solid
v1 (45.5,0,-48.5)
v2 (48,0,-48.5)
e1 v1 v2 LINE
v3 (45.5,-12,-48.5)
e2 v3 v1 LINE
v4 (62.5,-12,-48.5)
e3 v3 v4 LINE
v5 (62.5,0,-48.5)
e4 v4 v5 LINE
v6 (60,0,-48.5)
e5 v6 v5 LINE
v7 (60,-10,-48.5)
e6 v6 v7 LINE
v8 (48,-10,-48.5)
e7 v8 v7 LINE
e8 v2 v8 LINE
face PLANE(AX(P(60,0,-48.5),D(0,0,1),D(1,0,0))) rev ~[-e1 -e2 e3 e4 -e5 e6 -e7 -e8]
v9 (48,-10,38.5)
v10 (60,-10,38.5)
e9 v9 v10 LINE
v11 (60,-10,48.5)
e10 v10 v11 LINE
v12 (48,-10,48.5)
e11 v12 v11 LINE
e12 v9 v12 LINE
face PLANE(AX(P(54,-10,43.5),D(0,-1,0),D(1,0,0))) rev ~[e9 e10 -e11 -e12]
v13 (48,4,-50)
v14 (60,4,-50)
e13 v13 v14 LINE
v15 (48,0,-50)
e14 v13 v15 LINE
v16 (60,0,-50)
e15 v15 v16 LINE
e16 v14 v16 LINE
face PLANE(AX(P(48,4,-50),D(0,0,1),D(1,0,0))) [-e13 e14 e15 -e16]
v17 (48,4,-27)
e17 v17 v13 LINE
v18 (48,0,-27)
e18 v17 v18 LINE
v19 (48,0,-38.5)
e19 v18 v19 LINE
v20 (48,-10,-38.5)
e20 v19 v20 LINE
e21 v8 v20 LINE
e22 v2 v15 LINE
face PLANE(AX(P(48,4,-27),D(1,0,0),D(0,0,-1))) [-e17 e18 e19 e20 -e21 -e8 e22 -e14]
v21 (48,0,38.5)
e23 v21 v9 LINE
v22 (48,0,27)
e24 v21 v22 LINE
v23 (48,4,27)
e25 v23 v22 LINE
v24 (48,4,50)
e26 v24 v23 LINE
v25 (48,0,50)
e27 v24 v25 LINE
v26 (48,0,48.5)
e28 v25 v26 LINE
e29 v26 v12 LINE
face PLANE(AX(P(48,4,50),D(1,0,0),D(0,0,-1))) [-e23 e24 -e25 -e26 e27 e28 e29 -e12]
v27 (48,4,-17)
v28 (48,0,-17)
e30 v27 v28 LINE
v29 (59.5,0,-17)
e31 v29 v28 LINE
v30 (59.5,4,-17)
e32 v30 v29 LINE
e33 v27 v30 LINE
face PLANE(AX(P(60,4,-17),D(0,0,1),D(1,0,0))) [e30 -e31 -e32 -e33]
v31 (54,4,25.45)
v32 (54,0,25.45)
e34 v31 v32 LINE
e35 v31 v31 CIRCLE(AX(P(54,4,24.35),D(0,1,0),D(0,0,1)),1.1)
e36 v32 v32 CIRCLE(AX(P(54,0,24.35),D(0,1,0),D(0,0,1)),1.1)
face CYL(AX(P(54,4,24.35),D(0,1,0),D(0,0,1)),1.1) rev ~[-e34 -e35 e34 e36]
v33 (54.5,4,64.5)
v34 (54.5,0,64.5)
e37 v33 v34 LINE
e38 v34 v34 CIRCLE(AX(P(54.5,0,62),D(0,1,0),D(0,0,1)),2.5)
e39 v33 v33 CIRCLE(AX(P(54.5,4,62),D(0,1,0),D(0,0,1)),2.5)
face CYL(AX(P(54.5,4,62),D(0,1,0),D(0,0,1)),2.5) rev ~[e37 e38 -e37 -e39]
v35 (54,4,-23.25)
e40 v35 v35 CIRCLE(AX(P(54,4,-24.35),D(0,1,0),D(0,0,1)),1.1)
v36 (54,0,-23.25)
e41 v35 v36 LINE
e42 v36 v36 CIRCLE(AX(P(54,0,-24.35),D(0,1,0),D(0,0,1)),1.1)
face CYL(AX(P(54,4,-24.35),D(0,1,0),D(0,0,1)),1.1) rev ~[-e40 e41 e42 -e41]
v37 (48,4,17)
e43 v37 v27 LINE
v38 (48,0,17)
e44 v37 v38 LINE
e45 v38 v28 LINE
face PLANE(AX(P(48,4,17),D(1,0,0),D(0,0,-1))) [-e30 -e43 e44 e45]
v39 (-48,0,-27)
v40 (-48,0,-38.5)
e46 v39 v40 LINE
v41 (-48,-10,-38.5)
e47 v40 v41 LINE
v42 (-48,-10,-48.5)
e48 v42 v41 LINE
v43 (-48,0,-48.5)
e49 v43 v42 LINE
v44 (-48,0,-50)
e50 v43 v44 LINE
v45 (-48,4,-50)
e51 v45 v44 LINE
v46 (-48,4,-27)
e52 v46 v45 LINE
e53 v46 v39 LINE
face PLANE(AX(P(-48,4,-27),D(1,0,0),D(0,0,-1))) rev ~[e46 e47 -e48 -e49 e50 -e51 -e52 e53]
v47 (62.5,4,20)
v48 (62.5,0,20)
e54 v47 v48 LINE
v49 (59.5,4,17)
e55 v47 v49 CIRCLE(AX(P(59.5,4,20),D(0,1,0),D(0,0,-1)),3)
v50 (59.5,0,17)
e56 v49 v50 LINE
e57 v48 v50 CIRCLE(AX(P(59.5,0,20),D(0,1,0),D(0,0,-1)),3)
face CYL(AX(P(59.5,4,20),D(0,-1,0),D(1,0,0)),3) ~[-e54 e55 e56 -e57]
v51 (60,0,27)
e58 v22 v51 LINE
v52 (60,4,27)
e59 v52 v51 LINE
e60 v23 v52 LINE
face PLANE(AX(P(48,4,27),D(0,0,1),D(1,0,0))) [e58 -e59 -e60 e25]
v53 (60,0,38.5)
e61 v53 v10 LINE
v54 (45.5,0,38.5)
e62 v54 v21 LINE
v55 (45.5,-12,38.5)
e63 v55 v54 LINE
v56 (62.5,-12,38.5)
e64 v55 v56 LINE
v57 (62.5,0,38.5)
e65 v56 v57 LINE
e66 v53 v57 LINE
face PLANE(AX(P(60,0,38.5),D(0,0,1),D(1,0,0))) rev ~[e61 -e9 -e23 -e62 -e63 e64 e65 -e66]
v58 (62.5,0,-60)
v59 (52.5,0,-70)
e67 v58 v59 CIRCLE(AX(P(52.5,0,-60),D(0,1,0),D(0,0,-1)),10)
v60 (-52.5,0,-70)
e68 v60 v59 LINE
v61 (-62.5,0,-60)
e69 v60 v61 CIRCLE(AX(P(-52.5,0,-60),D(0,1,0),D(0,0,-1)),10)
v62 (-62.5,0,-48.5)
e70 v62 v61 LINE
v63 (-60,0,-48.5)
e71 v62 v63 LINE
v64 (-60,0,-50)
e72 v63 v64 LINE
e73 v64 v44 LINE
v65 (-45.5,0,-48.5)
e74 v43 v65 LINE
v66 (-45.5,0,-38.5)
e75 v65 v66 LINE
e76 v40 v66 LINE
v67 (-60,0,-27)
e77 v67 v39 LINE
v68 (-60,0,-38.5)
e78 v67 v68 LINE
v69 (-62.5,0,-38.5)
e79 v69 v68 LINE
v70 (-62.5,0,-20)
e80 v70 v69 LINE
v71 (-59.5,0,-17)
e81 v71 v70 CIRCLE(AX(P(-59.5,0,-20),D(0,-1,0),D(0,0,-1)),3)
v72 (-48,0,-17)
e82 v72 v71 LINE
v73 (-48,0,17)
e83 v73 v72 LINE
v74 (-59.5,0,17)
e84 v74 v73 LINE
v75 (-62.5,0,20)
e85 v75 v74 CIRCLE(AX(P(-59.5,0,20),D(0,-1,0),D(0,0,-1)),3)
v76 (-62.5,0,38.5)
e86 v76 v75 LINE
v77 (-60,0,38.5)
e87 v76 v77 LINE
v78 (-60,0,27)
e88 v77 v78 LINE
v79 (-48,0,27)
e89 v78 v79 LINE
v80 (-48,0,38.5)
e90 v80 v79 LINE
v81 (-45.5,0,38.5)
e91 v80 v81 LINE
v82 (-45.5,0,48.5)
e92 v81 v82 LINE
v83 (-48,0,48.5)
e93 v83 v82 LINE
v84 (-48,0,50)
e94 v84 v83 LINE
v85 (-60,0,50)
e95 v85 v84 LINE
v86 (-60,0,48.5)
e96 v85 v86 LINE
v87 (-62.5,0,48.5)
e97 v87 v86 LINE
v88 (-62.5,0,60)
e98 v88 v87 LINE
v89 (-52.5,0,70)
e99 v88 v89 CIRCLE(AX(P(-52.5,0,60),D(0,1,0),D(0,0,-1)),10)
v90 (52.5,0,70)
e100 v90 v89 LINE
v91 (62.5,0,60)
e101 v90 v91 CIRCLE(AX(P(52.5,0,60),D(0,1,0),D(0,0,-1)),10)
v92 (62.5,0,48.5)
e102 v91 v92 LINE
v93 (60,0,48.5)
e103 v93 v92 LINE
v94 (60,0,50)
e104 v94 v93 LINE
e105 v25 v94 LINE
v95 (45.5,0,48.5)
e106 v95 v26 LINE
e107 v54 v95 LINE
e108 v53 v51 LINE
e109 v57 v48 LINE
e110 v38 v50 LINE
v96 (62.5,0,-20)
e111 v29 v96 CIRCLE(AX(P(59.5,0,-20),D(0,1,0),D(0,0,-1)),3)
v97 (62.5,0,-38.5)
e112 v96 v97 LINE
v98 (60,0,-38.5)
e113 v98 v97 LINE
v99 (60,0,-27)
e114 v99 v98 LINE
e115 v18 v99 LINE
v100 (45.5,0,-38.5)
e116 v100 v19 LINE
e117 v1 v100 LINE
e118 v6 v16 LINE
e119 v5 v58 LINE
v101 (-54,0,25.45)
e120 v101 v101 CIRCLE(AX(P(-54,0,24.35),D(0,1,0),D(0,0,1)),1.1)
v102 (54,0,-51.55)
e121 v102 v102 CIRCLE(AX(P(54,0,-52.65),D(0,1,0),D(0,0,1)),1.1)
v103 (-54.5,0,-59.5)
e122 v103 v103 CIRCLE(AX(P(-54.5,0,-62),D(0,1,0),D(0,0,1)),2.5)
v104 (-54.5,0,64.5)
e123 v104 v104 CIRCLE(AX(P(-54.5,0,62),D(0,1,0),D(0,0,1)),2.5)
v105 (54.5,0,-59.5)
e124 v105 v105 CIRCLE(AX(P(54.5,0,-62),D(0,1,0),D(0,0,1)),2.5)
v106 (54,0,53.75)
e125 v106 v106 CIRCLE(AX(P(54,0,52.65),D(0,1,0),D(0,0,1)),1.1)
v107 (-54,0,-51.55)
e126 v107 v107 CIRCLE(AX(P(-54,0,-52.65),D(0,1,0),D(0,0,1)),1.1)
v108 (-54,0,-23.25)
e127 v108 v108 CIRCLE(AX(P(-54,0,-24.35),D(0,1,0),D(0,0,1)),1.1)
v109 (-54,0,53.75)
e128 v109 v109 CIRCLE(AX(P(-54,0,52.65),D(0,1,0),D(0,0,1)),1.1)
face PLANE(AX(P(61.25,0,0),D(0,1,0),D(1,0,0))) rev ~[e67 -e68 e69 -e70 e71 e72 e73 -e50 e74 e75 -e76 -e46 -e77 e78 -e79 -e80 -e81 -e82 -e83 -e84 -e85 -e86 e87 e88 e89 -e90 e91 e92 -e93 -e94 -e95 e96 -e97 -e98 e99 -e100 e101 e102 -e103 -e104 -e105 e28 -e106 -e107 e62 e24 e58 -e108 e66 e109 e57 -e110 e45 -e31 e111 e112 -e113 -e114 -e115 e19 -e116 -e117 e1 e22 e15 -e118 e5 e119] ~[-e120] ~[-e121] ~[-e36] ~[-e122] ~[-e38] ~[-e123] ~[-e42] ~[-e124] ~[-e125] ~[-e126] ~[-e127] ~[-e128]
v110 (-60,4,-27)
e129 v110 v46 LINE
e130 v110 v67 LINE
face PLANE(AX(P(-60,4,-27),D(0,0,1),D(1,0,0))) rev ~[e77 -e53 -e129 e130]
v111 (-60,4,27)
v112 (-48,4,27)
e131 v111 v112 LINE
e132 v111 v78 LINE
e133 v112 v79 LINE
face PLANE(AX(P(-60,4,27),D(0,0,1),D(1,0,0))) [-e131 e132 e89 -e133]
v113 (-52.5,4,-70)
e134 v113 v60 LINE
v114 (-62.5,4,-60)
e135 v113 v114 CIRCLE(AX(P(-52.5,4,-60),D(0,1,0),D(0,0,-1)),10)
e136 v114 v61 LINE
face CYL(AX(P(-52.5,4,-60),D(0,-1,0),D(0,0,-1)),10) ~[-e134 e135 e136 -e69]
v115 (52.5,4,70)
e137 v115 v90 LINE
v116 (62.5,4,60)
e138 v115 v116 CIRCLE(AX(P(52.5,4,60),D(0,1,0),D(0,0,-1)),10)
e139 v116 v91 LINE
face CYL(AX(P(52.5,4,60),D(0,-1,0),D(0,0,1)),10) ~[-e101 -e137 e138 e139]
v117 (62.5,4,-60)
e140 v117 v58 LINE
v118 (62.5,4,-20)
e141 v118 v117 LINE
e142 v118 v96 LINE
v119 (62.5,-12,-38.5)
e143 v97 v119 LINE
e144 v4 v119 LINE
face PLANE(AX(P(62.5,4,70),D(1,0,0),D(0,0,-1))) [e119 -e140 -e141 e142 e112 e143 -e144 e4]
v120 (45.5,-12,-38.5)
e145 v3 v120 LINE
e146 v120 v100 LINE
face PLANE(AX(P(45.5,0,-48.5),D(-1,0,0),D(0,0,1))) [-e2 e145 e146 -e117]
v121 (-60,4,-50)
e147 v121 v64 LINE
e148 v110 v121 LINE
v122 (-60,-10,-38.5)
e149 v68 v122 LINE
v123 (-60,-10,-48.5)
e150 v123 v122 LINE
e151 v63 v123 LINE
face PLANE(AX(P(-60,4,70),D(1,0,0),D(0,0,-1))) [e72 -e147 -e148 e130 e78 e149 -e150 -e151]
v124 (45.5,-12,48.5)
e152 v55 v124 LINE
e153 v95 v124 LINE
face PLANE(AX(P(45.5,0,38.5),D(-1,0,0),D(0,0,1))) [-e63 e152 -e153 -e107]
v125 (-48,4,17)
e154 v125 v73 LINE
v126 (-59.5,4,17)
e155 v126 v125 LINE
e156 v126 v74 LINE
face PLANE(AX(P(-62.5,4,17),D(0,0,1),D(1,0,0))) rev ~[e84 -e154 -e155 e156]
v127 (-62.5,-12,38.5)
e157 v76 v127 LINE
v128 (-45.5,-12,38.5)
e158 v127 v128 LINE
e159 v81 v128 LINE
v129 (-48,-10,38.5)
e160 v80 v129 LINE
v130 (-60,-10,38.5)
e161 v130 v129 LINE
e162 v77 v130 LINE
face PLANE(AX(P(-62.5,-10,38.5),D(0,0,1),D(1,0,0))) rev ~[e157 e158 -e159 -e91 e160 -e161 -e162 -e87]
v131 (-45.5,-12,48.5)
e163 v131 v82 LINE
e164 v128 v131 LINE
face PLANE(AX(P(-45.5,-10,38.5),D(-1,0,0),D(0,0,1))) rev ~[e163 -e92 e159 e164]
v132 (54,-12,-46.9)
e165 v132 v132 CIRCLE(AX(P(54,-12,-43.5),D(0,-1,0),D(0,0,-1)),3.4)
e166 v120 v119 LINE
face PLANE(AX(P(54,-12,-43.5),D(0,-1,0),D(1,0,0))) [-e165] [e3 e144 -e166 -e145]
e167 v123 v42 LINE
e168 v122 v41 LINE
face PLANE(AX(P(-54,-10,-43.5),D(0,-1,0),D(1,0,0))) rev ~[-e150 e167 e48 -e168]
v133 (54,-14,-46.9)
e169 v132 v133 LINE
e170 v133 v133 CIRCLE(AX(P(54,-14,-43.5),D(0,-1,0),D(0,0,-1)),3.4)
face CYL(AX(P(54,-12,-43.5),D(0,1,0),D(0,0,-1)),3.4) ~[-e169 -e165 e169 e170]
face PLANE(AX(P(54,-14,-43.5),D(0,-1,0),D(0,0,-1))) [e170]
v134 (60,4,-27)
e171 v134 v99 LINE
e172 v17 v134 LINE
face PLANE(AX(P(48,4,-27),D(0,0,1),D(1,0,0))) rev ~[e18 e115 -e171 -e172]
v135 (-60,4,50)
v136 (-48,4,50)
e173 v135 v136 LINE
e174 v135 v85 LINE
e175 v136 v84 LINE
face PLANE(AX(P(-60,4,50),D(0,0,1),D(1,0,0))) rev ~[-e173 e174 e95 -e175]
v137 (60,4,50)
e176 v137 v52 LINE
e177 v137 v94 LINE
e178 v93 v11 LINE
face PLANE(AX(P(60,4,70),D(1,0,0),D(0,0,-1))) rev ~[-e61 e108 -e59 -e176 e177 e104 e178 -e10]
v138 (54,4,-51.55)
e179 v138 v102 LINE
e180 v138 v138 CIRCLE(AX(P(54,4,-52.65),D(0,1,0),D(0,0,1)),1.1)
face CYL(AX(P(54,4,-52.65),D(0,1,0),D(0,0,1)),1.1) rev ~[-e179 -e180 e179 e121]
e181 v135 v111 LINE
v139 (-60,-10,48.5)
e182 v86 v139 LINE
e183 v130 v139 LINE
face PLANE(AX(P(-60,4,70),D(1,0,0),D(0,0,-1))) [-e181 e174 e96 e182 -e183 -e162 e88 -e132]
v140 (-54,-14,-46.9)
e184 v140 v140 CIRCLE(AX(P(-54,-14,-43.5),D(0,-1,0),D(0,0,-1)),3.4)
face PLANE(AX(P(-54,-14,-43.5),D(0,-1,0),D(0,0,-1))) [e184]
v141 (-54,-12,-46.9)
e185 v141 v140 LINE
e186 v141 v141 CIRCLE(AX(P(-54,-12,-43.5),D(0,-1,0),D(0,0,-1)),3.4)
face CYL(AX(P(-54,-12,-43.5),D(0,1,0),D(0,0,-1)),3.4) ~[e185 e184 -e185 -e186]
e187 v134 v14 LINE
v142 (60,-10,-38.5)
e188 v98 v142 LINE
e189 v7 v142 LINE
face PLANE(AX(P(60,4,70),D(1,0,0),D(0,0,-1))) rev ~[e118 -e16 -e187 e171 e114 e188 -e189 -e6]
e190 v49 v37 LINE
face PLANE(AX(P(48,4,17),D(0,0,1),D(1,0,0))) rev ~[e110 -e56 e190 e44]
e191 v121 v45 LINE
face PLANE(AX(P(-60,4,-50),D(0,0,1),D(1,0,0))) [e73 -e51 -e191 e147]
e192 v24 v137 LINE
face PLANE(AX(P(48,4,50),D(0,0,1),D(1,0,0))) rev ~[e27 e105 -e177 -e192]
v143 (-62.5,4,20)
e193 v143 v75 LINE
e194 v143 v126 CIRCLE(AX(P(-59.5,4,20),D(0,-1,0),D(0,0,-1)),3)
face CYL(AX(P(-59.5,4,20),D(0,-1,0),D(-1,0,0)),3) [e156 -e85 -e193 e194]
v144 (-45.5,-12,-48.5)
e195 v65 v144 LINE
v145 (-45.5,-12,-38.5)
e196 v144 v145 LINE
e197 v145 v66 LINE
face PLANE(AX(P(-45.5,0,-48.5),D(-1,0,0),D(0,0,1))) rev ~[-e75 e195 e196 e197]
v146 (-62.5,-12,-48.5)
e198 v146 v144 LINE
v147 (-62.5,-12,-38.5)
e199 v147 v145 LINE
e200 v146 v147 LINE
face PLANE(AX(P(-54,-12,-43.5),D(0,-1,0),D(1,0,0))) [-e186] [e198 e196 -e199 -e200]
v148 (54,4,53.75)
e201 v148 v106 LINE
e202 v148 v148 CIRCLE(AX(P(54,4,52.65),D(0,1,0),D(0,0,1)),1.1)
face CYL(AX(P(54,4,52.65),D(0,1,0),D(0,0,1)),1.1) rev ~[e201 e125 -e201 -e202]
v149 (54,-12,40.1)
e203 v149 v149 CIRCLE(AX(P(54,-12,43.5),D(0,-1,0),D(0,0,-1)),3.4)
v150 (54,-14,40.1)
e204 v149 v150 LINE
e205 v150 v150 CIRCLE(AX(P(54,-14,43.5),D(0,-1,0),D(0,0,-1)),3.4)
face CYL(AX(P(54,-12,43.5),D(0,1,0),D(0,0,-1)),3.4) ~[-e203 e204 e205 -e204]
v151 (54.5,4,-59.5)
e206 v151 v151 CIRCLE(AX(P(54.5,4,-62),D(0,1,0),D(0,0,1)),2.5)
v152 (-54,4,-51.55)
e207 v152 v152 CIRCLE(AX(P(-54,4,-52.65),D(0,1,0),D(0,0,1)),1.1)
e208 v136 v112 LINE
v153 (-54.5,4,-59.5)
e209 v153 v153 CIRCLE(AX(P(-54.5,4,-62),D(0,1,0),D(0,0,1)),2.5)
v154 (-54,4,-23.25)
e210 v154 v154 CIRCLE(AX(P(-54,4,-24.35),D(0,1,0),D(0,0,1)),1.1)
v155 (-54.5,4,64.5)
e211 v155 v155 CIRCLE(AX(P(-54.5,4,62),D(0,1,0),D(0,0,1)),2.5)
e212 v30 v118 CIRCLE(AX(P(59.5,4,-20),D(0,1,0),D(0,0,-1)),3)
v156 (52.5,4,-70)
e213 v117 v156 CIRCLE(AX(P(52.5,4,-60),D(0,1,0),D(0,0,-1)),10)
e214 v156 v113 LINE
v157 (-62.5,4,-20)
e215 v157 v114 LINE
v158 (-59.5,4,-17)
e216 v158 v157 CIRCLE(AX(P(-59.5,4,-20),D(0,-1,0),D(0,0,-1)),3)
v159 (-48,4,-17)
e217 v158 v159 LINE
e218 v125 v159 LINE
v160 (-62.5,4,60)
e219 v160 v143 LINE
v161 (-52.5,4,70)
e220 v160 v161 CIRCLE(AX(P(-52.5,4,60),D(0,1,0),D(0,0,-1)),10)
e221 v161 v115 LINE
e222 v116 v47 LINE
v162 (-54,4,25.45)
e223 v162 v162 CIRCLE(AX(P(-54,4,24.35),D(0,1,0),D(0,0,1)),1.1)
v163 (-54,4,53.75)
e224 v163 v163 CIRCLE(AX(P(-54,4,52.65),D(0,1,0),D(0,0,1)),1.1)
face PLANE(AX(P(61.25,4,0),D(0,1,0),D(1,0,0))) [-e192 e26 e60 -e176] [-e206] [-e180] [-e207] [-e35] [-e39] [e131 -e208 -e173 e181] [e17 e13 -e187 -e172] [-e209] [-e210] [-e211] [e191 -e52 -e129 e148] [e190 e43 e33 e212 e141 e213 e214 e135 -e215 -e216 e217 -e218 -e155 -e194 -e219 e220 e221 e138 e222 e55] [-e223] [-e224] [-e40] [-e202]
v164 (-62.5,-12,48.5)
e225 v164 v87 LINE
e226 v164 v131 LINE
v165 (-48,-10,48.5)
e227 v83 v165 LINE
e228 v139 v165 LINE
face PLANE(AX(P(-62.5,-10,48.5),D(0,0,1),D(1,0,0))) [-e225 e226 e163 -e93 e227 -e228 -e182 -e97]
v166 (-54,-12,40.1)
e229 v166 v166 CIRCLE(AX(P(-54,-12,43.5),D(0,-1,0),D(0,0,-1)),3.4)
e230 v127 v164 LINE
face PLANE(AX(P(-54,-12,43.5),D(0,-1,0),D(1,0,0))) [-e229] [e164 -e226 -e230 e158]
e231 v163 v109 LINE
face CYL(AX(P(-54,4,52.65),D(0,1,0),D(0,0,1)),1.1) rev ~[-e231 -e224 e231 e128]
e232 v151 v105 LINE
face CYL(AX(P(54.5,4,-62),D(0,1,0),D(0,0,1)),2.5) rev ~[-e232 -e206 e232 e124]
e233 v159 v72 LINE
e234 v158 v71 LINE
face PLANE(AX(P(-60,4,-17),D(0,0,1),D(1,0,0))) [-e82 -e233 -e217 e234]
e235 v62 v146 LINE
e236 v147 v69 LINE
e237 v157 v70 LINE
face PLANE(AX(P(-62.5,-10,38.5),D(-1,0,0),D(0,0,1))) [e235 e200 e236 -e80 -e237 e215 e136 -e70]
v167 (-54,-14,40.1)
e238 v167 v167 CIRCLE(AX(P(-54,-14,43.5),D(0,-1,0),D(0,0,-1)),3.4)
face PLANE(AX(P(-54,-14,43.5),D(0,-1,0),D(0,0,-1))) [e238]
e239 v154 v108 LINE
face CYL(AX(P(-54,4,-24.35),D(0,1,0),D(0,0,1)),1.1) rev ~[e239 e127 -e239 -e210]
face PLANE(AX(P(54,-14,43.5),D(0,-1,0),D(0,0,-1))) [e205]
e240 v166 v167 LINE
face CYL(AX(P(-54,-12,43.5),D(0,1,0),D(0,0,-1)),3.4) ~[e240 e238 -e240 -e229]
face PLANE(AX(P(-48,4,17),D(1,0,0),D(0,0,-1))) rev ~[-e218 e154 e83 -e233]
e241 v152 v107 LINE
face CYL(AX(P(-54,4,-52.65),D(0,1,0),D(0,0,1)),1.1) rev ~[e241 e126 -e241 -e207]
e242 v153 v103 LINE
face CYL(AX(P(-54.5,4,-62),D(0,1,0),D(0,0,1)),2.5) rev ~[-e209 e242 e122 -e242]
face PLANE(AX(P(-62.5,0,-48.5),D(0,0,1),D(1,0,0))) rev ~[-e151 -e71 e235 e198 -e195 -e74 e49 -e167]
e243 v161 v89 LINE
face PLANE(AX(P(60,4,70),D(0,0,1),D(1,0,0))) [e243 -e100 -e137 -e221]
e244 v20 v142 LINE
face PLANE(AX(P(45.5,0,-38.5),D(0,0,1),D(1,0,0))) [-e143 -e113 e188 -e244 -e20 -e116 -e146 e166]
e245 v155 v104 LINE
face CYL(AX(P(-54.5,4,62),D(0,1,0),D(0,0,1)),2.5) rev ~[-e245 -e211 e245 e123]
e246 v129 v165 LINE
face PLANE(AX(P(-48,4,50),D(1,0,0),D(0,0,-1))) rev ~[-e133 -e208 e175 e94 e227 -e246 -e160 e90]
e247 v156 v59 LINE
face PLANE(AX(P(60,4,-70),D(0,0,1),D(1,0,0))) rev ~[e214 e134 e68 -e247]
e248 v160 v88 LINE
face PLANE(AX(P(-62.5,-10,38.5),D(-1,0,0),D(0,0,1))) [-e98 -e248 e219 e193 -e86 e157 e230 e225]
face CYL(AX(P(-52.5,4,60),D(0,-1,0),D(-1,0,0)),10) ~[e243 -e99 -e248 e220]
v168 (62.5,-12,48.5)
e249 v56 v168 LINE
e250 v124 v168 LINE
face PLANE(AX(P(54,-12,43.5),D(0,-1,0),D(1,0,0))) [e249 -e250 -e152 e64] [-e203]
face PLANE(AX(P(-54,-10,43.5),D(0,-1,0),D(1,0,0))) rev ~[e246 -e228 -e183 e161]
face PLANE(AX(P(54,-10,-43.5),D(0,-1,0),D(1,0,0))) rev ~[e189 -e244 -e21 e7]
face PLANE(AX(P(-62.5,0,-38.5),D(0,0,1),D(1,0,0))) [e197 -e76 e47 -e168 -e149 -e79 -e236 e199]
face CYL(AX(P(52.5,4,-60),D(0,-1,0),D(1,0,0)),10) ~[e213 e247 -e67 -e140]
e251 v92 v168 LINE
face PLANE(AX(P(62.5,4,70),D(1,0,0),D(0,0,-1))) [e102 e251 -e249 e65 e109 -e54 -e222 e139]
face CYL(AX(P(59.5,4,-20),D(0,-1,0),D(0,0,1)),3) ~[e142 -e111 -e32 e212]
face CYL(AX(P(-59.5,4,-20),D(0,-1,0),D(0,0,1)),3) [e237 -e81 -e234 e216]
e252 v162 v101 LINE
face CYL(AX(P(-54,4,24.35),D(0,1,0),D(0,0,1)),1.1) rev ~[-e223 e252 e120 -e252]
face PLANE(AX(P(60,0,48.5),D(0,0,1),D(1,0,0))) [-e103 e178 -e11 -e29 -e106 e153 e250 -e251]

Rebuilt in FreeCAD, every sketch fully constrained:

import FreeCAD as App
import Part
import Sketcher
from FreeCAD import Vector
Q = App.Units.Quantity


def edges_at(feature, points):
    """Names of the edges that pass closest to the given points."""
    edges = feature.Shape.Edges
    near = lambda p: min(range(len(edges)), key=lambda i: edges[i].distToShape(Part.Vertex(*p))[0])
    return sorted({f"Edge{near(p) + 1}" for p in points})

doc = App.newDocument("Part")
body = doc.addObject("PartDesign::Body", "Body")

sketch1 = doc.addObject("Sketcher::SketchObject", "Sketch")
body.addObject(sketch1)
sketch1.AttachmentSupport = (doc.XZ_Plane, [""])
sketch1.MapMode = "FlatFace"
sketch1.addGeometry([
    Part.LineSegment(Vector(-60, -70, 0), Vector(-60, 70, 0)),
    Part.LineSegment(Vector(-60, 70, 0), Vector(60, 70, 0)),
    Part.LineSegment(Vector(60, 70, 0), Vector(60, -70, 0)),
    Part.LineSegment(Vector(60, -70, 0), Vector(-60, -70, 0)),
], False)
sketch1.addConstraint([
    Sketcher.Constraint("Coincident", 0, 2, 1, 1),
    Sketcher.Constraint("Coincident", 1, 2, 2, 1),
    Sketcher.Constraint("Coincident", 2, 2, 3, 1),
    Sketcher.Constraint("Coincident", 3, 2, 0, 1),
    Sketcher.Constraint("Vertical", 0),
    Sketcher.Constraint("Horizontal", 1),
    Sketcher.Constraint("Vertical", 2),
    Sketcher.Constraint("Horizontal", 3),
    Sketcher.Constraint("Symmetric", 0, 2, 2, 2, -1, 1),
    Sketcher.Constraint("DistanceX", 1, 1, 1, 2, Q("120 mm")),
    Sketcher.Constraint("DistanceY", 0, 1, 0, 2, Q("140 mm")),
])
pad1 = doc.addObject("PartDesign::Pad", "Pad")
body.addObject(pad1)
pad1.Profile = sketch1
pad1.Length = 4
pad1.Reversed = True

sketch2 = doc.addObject("Sketcher::SketchObject", "Sketch001")
body.addObject(sketch2)
sketch2.AttachmentSupport = (doc.XZ_Plane, [""])
sketch2.MapMode = "FlatFace"
sketch2.AttachmentOffset = App.Placement(Vector(0, 0, -4), App.Rotation())
sketch2.addGeometry([
    Part.LineSegment(Vector(48, -50, 0), Vector(48, -27, 0)),
    Part.LineSegment(Vector(48, -27, 0), Vector(60, -27, 0)),
    Part.LineSegment(Vector(60, -27, 0), Vector(60, -50, 0)),
    Part.LineSegment(Vector(60, -50, 0), Vector(48, -50, 0)),
    Part.LineSegment(Vector(-60, -50, 0), Vector(-60, -27, 0)),
    Part.LineSegment(Vector(-60, -27, 0), Vector(-48, -27, 0)),
    Part.LineSegment(Vector(-48, -27, 0), Vector(-48, -50, 0)),
    Part.LineSegment(Vector(-48, -50, 0), Vector(-60, -50, 0)),
    Part.LineSegment(Vector(48, 27, 0), Vector(48, 50, 0)),
    Part.LineSegment(Vector(48, 50, 0), Vector(60, 50, 0)),
    Part.LineSegment(Vector(60, 50, 0), Vector(60, 27, 0)),
    Part.LineSegment(Vector(60, 27, 0), Vector(48, 27, 0)),
    Part.LineSegment(Vector(-60, 27, 0), Vector(-60, 50, 0)),
    Part.LineSegment(Vector(-60, 50, 0), Vector(-48, 50, 0)),
    Part.LineSegment(Vector(-48, 50, 0), Vector(-48, 27, 0)),
    Part.LineSegment(Vector(-48, 27, 0), Vector(-60, 27, 0)),
    Part.LineSegment(Vector(-60, -17, 0), Vector(-60, 17, 0)),
    Part.LineSegment(Vector(-60, 17, 0), Vector(-48, 17, 0)),
    Part.LineSegment(Vector(-48, 17, 0), Vector(-48, -17, 0)),
    Part.LineSegment(Vector(-48, -17, 0), Vector(-60, -17, 0)),
    Part.LineSegment(Vector(48, -17, 0), Vector(48, 17, 0)),
    Part.LineSegment(Vector(48, 17, 0), Vector(60, 17, 0)),
    Part.LineSegment(Vector(60, 17, 0), Vector(60, -17, 0)),
    Part.LineSegment(Vector(60, -17, 0), Vector(48, -17, 0)),
    Part.Circle(Vector(-54, -52.6, 0), Vector(0, 0, 1), 1.1),
    Part.Circle(Vector(-54, -24.4, 0), Vector(0, 0, 1), 1.1),
    Part.Circle(Vector(-54, 24.4, 0), Vector(0, 0, 1), 1.1),
    Part.Circle(Vector(-54, 52.6, 0), Vector(0, 0, 1), 1.1),
    Part.Circle(Vector(54, -52.6, 0), Vector(0, 0, 1), 1.1),
    Part.Circle(Vector(54, -24.4, 0), Vector(0, 0, 1), 1.1),
    Part.Circle(Vector(54, 24.4, 0), Vector(0, 0, 1), 1.1),
    Part.Circle(Vector(54, 52.6, 0), Vector(0, 0, 1), 1.1),
    Part.Circle(Vector(-54.5, -62, 0), Vector(0, 0, 1), 2.5),
    Part.Circle(Vector(54.5, -62, 0), Vector(0, 0, 1), 2.5),
    Part.Circle(Vector(54.5, 62, 0), Vector(0, 0, 1), 2.5),
    Part.Circle(Vector(-54.5, 62, 0), Vector(0, 0, 1), 2.5),
], False)
sketch2.addConstraint([
    Sketcher.Constraint("Coincident", 0, 2, 1, 1),
    Sketcher.Constraint("Coincident", 1, 2, 2, 1),
    Sketcher.Constraint("Coincident", 2, 2, 3, 1),
    Sketcher.Constraint("Coincident", 3, 2, 0, 1),
    Sketcher.Constraint("Coincident", 4, 2, 5, 1),
    Sketcher.Constraint("Coincident", 5, 2, 6, 1),
    Sketcher.Constraint("Coincident", 6, 2, 7, 1),
    Sketcher.Constraint("Coincident", 7, 2, 4, 1),
    Sketcher.Constraint("Coincident", 8, 2, 9, 1),
    Sketcher.Constraint("Coincident", 9, 2, 10, 1),
    Sketcher.Constraint("Coincident", 10, 2, 11, 1),
    Sketcher.Constraint("Coincident", 11, 2, 8, 1),
    Sketcher.Constraint("Coincident", 12, 2, 13, 1),
    Sketcher.Constraint("Coincident", 13, 2, 14, 1),
    Sketcher.Constraint("Coincident", 14, 2, 15, 1),
    Sketcher.Constraint("Coincident", 15, 2, 12, 1),
    Sketcher.Constraint("Coincident", 16, 2, 17, 1),
    Sketcher.Constraint("Coincident", 17, 2, 18, 1),
    Sketcher.Constraint("Coincident", 18, 2, 19, 1),
    Sketcher.Constraint("Coincident", 19, 2, 16, 1),
    Sketcher.Constraint("Coincident", 20, 2, 21, 1),
    Sketcher.Constraint("Coincident", 21, 2, 22, 1),
    Sketcher.Constraint("Coincident", 22, 2, 23, 1),
    Sketcher.Constraint("Coincident", 23, 2, 20, 1),
    Sketcher.Constraint("Vertical", 0),
    Sketcher.Constraint("Horizontal", 1),
    Sketcher.Constraint("Vertical", 2),
    Sketcher.Constraint("Horizontal", 3),
    Sketcher.Constraint("Vertical", 4),
    Sketcher.Constraint("Horizontal", 5),
    Sketcher.Constraint("Vertical", 6),
    Sketcher.Constraint("Horizontal", 7),
    Sketcher.Constraint("Vertical", 8),
    Sketcher.Constraint("Horizontal", 9),
    Sketcher.Constraint("Vertical", 10),
    Sketcher.Constraint("Horizontal", 11),
    Sketcher.Constraint("Vertical", 12),
    Sketcher.Constraint("Horizontal", 13),
    Sketcher.Constraint("Vertical", 14),
    Sketcher.Constraint("Horizontal", 15),
    Sketcher.Constraint("Vertical", 16),
    Sketcher.Constraint("Horizontal", 17),
    Sketcher.Constraint("Vertical", 18),
    Sketcher.Constraint("Horizontal", 19),
    Sketcher.Constraint("Vertical", 20),
    Sketcher.Constraint("Horizontal", 21),
    Sketcher.Constraint("Vertical", 22),
    Sketcher.Constraint("Horizontal", 23),
    Sketcher.Constraint("Equal", 24, 25),
    Sketcher.Constraint("Equal", 25, 26),
    Sketcher.Constraint("Equal", 26, 27),
    Sketcher.Constraint("Equal", 27, 28),
    Sketcher.Constraint("Equal", 28, 29),
    Sketcher.Constraint("Equal", 29, 30),
    Sketcher.Constraint("Equal", 30, 31),
    Sketcher.Constraint("Equal", 32, 33),
    Sketcher.Constraint("Equal", 33, 34),
    Sketcher.Constraint("Equal", 34, 35),
    Sketcher.Constraint("Symmetric", 27, 3, 28, 3, -1, 1),
    Sketcher.Constraint("Symmetric", 26, 3, 29, 3, -1, 1),
    Sketcher.Constraint("Symmetric", 25, 3, 30, 3, -1, 1),
    Sketcher.Constraint("Symmetric", 24, 3, 31, 3, -1, 1),
    Sketcher.Constraint("Symmetric", 32, 3, 34, 3, -1, 1),
    Sketcher.Constraint("Symmetric", 33, 3, 35, 3, -1, 1),
    Sketcher.Constraint("Symmetric", 6, 2, 8, 2, -1, 1),
    Sketcher.Constraint("Symmetric", 4, 2, 10, 2, -1, 1),
    Sketcher.Constraint("Symmetric", 2, 2, 12, 2, -1, 1),
    Sketcher.Constraint("Symmetric", 0, 2, 14, 2, -1, 1),
    Sketcher.Constraint("Symmetric", 18, 2, 20, 2, -1, 1),
    Sketcher.Constraint("Symmetric", 16, 2, 22, 2, -1, 1),
    Sketcher.Constraint("Symmetric", 24, 3, 28, 3, -2),
    Sketcher.Constraint("Symmetric", 25, 3, 29, 3, -2),
    Sketcher.Constraint("Symmetric", 32, 3, 33, 3, -2),
    Sketcher.Constraint("Symmetric", 1, 2, 4, 2, -2),
    Sketcher.Constraint("Symmetric", 3, 2, 6, 2, -2),
    Sketcher.Constraint("Horizontal", 17, 2, 20, 2),
    Sketcher.Constraint("Vertical", 24, 3, 25, 3),
    Sketcher.Constraint("Vertical", 15, 2, 16, 2),
    Sketcher.Constraint("Vertical", 14, 2, 17, 2),
    Sketcher.Constraint("Diameter", 32, Q("5 mm")),
    Sketcher.Constraint("Diameter", 24, Q("2.2 mm")),
    Sketcher.Constraint("DistanceX", 1, 1, 1, 2, Q("12 mm")),
    Sketcher.Constraint("DistanceY", 0, 1, 0, 2, Q("23 mm")),
    Sketcher.Constraint("DistanceY", 16, 1, 16, 2, Q("34 mm")),
    Sketcher.Constraint("DistanceX", 24, 3, -1, 1, Q("54 mm")),
    Sketcher.Constraint("DistanceY", 32, 3, -1, 1, Q("62 mm")),
    Sketcher.Constraint("DistanceX", -1, 1, 0, 2, Q("48 mm")),
    Sketcher.Constraint("DistanceY", 0, 2, -1, 1, Q("27 mm")),
    Sketcher.Constraint("DistanceY", 24, 3, 26, 3, Q("77 mm")),
    Sketcher.Constraint("DistanceX", 32, 3, 33, 3, Q("109 mm")),
    Sketcher.Constraint("DistanceY", 24, 3, 25, 3, Q("28.3 mm")),
])
pocket1 = doc.addObject("PartDesign::Pocket", "Pocket")
body.addObject(pocket1)
pocket1.Profile = sketch2
pocket1.Type = "ThroughAll"
pocket1.Reversed = True

sketch3 = doc.addObject("Sketcher::SketchObject", "Sketch002")
body.addObject(sketch3)
sketch3.AttachmentSupport = (doc.XZ_Plane, [""])
sketch3.MapMode = "FlatFace"
sketch3.AttachmentOffset = App.Placement(Vector(0, 0, -4), App.Rotation())
sketch3.addGeometry([
    Part.LineSegment(Vector(60, -70, 0), Vector(60, 70, 0)),
    Part.LineSegment(Vector(60, 70, 0), Vector(62.5, 70, 0)),
    Part.LineSegment(Vector(62.5, 70, 0), Vector(62.5, -70, 0)),
    Part.LineSegment(Vector(62.5, -70, 0), Vector(60, -70, 0)),
    Part.LineSegment(Vector(-62.5, -70, 0), Vector(-62.5, 70, 0)),
    Part.LineSegment(Vector(-62.5, 70, 0), Vector(-60, 70, 0)),
    Part.LineSegment(Vector(-60, 70, 0), Vector(-60, -70, 0)),
    Part.LineSegment(Vector(-60, -70, 0), Vector(-62.5, -70, 0)),
], False)
sketch3.addConstraint([
    Sketcher.Constraint("Coincident", 0, 2, 1, 1),
    Sketcher.Constraint("Coincident", 1, 2, 2, 1),
    Sketcher.Constraint("Coincident", 2, 2, 3, 1),
    Sketcher.Constraint("Coincident", 3, 2, 0, 1),
    Sketcher.Constraint("Coincident", 4, 2, 5, 1),
    Sketcher.Constraint("Coincident", 5, 2, 6, 1),
    Sketcher.Constraint("Coincident", 6, 2, 7, 1),
    Sketcher.Constraint("Coincident", 7, 2, 4, 1),
    Sketcher.Constraint("Vertical", 0),
    Sketcher.Constraint("Horizontal", 1),
    Sketcher.Constraint("Vertical", 2),
    Sketcher.Constraint("Horizontal", 3),
    Sketcher.Constraint("Vertical", 4),
    Sketcher.Constraint("Horizontal", 5),
    Sketcher.Constraint("Vertical", 6),
    Sketcher.Constraint("Horizontal", 7),
    Sketcher.Constraint("Symmetric", 2, 2, 4, 2, -1, 1),
    Sketcher.Constraint("Symmetric", 0, 2, 6, 2, -1, 1),
    Sketcher.Constraint("Horizontal", 1, 2, 4, 2),
    Sketcher.Constraint("DistanceY", 0, 1, 0, 2, Q("140 mm")),
    Sketcher.Constraint("DistanceX", 1, 1, 1, 2, Q("2.5 mm")),
    Sketcher.Constraint("DistanceX", -1, 1, 0, 2, Q("60 mm")),
])
pad2 = doc.addObject("PartDesign::Pad", "Pad001")
body.addObject(pad2)
pad2.Profile = sketch3
pad2.Length = 4

sketch4 = doc.addObject("Sketcher::SketchObject", "Sketch003")
body.addObject(sketch4)
sketch4.AttachmentSupport = (doc.XZ_Plane, [""])
sketch4.MapMode = "FlatFace"
sketch4.addGeometry([
    Part.LineSegment(Vector(45.5, 48.5, 0), Vector(45.5, 38.5, 0)),
    Part.LineSegment(Vector(45.5, 38.5, 0), Vector(48, 38.5, 0)),
    Part.LineSegment(Vector(48, 38.5, 0), Vector(48, 48.5, 0)),
    Part.LineSegment(Vector(48, 48.5, 0), Vector(45.5, 48.5, 0)),
    Part.LineSegment(Vector(60, 48.5, 0), Vector(60, 38.5, 0)),
    Part.LineSegment(Vector(60, 38.5, 0), Vector(62.5, 38.5, 0)),
    Part.LineSegment(Vector(62.5, 38.5, 0), Vector(62.5, 48.5, 0)),
    Part.LineSegment(Vector(62.5, 48.5, 0), Vector(60, 48.5, 0)),
    Part.LineSegment(Vector(-62.5, 48.5, 0), Vector(-62.5, 38.5, 0)),
    Part.LineSegment(Vector(-62.5, 38.5, 0), Vector(-60, 38.5, 0)),
    Part.LineSegment(Vector(-60, 38.5, 0), Vector(-60, 48.5, 0)),
    Part.LineSegment(Vector(-60, 48.5, 0), Vector(-62.5, 48.5, 0)),
    Part.LineSegment(Vector(-48, 48.5, 0), Vector(-48, 38.5, 0)),
    Part.LineSegment(Vector(-48, 38.5, 0), Vector(-45.5, 38.5, 0)),
    Part.LineSegment(Vector(-45.5, 38.5, 0), Vector(-45.5, 48.5, 0)),
    Part.LineSegment(Vector(-45.5, 48.5, 0), Vector(-48, 48.5, 0)),
    Part.LineSegment(Vector(-62.5, -38.5, 0), Vector(-62.5, -48.5, 0)),
    Part.LineSegment(Vector(-62.5, -48.5, 0), Vector(-60, -48.5, 0)),
    Part.LineSegment(Vector(-60, -48.5, 0), Vector(-60, -38.5, 0)),
    Part.LineSegment(Vector(-60, -38.5, 0), Vector(-62.5, -38.5, 0)),
    Part.LineSegment(Vector(-48, -38.5, 0), Vector(-48, -48.5, 0)),
    Part.LineSegment(Vector(-48, -48.5, 0), Vector(-45.5, -48.5, 0)),
    Part.LineSegment(Vector(-45.5, -48.5, 0), Vector(-45.5, -38.5, 0)),
    Part.LineSegment(Vector(-45.5, -38.5, 0), Vector(-48, -38.5, 0)),
    Part.LineSegment(Vector(45.5, -38.5, 0), Vector(45.5, -48.5, 0)),
    Part.LineSegment(Vector(45.5, -48.5, 0), Vector(48, -48.5, 0)),
    Part.LineSegment(Vector(48, -48.5, 0), Vector(48, -38.5, 0)),
    Part.LineSegment(Vector(48, -38.5, 0), Vector(45.5, -38.5, 0)),
    Part.LineSegment(Vector(60, -38.5, 0), Vector(60, -48.5, 0)),
    Part.LineSegment(Vector(60, -48.5, 0), Vector(62.5, -48.5, 0)),
    Part.LineSegment(Vector(62.5, -48.5, 0), Vector(62.5, -38.5, 0)),
    Part.LineSegment(Vector(62.5, -38.5, 0), Vector(60, -38.5, 0)),
], False)
sketch4.addConstraint([
    Sketcher.Constraint("Coincident", 0, 2, 1, 1),
    Sketcher.Constraint("Coincident", 1, 2, 2, 1),
    Sketcher.Constraint("Coincident", 2, 2, 3, 1),
    Sketcher.Constraint("Coincident", 3, 2, 0, 1),
    Sketcher.Constraint("Coincident", 4, 2, 5, 1),
    Sketcher.Constraint("Coincident", 5, 2, 6, 1),
    Sketcher.Constraint("Coincident", 6, 2, 7, 1),
    Sketcher.Constraint("Coincident", 7, 2, 4, 1),
    Sketcher.Constraint("Coincident", 8, 2, 9, 1),
    Sketcher.Constraint("Coincident", 9, 2, 10, 1),
    Sketcher.Constraint("Coincident", 10, 2, 11, 1),
    Sketcher.Constraint("Coincident", 11, 2, 8, 1),
    Sketcher.Constraint("Coincident", 12, 2, 13, 1),
    Sketcher.Constraint("Coincident", 13, 2, 14, 1),
    Sketcher.Constraint("Coincident", 14, 2, 15, 1),
    Sketcher.Constraint("Coincident", 15, 2, 12, 1),
    Sketcher.Constraint("Coincident", 16, 2, 17, 1),
    Sketcher.Constraint("Coincident", 17, 2, 18, 1),
    Sketcher.Constraint("Coincident", 18, 2, 19, 1),
    Sketcher.Constraint("Coincident", 19, 2, 16, 1),
    Sketcher.Constraint("Coincident", 20, 2, 21, 1),
    Sketcher.Constraint("Coincident", 21, 2, 22, 1),
    Sketcher.Constraint("Coincident", 22, 2, 23, 1),
    Sketcher.Constraint("Coincident", 23, 2, 20, 1),
    Sketcher.Constraint("Coincident", 24, 2, 25, 1),
    Sketcher.Constraint("Coincident", 25, 2, 26, 1),
    Sketcher.Constraint("Coincident", 26, 2, 27, 1),
    Sketcher.Constraint("Coincident", 27, 2, 24, 1),
    Sketcher.Constraint("Coincident", 28, 2, 29, 1),
    Sketcher.Constraint("Coincident", 29, 2, 30, 1),
    Sketcher.Constraint("Coincident", 30, 2, 31, 1),
    Sketcher.Constraint("Coincident", 31, 2, 28, 1),
    Sketcher.Constraint("Vertical", 0),
    Sketcher.Constraint("Horizontal", 1),
    Sketcher.Constraint("Vertical", 2),
    Sketcher.Constraint("Horizontal", 3),
    Sketcher.Constraint("Vertical", 4),
    Sketcher.Constraint("Horizontal", 5),
    Sketcher.Constraint("Vertical", 6),
    Sketcher.Constraint("Horizontal", 7),
    Sketcher.Constraint("Vertical", 8),
    Sketcher.Constraint("Horizontal", 9),
    Sketcher.Constraint("Vertical", 10),
    Sketcher.Constraint("Horizontal", 11),
    Sketcher.Constraint("Vertical", 12),
    Sketcher.Constraint("Horizontal", 13),
    Sketcher.Constraint("Vertical", 14),
    Sketcher.Constraint("Horizontal", 15),
    Sketcher.Constraint("Vertical", 16),
    Sketcher.Constraint("Horizontal", 17),
    Sketcher.Constraint("Vertical", 18),
    Sketcher.Constraint("Horizontal", 19),
    Sketcher.Constraint("Vertical", 20),
    Sketcher.Constraint("Horizontal", 21),
    Sketcher.Constraint("Vertical", 22),
    Sketcher.Constraint("Horizontal", 23),
    Sketcher.Constraint("Vertical", 24),
    Sketcher.Constraint("Horizontal", 25),
    Sketcher.Constraint("Vertical", 26),
    Sketcher.Constraint("Horizontal", 27),
    Sketcher.Constraint("Vertical", 28),
    Sketcher.Constraint("Horizontal", 29),
    Sketcher.Constraint("Vertical", 30),
    Sketcher.Constraint("Horizontal", 31),
    Sketcher.Constraint("Symmetric", 6, 2, 16, 2, -1, 1),
    Sketcher.Constraint("Symmetric", 4, 2, 18, 2, -1, 1),
    Sketcher.Constraint("Symmetric", 2, 2, 20, 2, -1, 1),
    Sketcher.Constraint("Symmetric", 0, 2, 22, 2, -1, 1),
    Sketcher.Constraint("Symmetric", 14, 2, 24, 2, -1, 1),
    Sketcher.Constraint("Symmetric", 12, 2, 26, 2, -1, 1),
    Sketcher.Constraint("Symmetric", 10, 2, 28, 2, -1, 1),
    Sketcher.Constraint("Symmetric", 8, 2, 30, 2, -1, 1),
    Sketcher.Constraint("Symmetric", 5, 2, 8, 2, -2),
    Sketcher.Constraint("Symmetric", 7, 2, 10, 2, -2),
    Sketcher.Constraint("Symmetric", 1, 2, 12, 2, -2),
    Sketcher.Constraint("Symmetric", 3, 2, 14, 2, -2),
    Sketcher.Constraint("Horizontal", 1, 2, 4, 2),
    Sketcher.Constraint("Horizontal", 3, 2, 6, 2),
    Sketcher.Constraint("Equal", 3, 5),
    Sketcher.Constraint("DistanceY", 0, 2, 0, 1, Q("10 mm")),
    Sketcher.Constraint("DistanceX", 1, 1, 1, 2, Q("2.5 mm")),
    Sketcher.Constraint("DistanceX", -1, 1, 1, 2, Q("48 mm")),
    Sketcher.Constraint("DistanceX", -1, 1, 4, 2, Q("60 mm")),
    Sketcher.Constraint("DistanceY", 16, 2, 8, 2, Q("87 mm")),
])
pad3 = doc.addObject("PartDesign::Pad", "Pad002")
body.addObject(pad3)
pad3.Profile = sketch4
pad3.Length = 10

sketch5 = doc.addObject("Sketcher::SketchObject", "Sketch004")
body.addObject(sketch5)
sketch5.AttachmentSupport = (doc.XZ_Plane, [""])
sketch5.MapMode = "FlatFace"
sketch5.AttachmentOffset = App.Placement(Vector(0, 0, 10), App.Rotation())
sketch5.addGeometry([
    Part.LineSegment(Vector(-62, 48, 0), Vector(-62, 38, 0)),
    Part.LineSegment(Vector(-62, 38, 0), Vector(-46, 38, 0)),
    Part.LineSegment(Vector(-46, 38, 0), Vector(-46, 48, 0)),
    Part.LineSegment(Vector(-46, 48, 0), Vector(-62, 48, 0)),
    Part.LineSegment(Vector(-62, -38, 0), Vector(-62, -48, 0)),
    Part.LineSegment(Vector(-62, -48, 0), Vector(-46, -48, 0)),
    Part.LineSegment(Vector(-46, -48, 0), Vector(-46, -38, 0)),
    Part.LineSegment(Vector(-46, -38, 0), Vector(-62, -38, 0)),
    Part.LineSegment(Vector(46, -38, 0), Vector(46, -48, 0)),
    Part.LineSegment(Vector(46, -48, 0), Vector(62, -48, 0)),
    Part.LineSegment(Vector(62, -48, 0), Vector(62, -38, 0)),
    Part.LineSegment(Vector(62, -38, 0), Vector(46, -38, 0)),
    Part.LineSegment(Vector(46, 48, 0), Vector(46, 38, 0)),
    Part.LineSegment(Vector(46, 38, 0), Vector(62, 38, 0)),
    Part.LineSegment(Vector(62, 38, 0), Vector(62, 48, 0)),
    Part.LineSegment(Vector(62, 48, 0), Vector(46, 48, 0)),
], False)
sketch5.addConstraint([
    Sketcher.Constraint("Coincident", 0, 2, 1, 1),
    Sketcher.Constraint("Coincident", 1, 2, 2, 1),
    Sketcher.Constraint("Coincident", 2, 2, 3, 1),
    Sketcher.Constraint("Coincident", 3, 2, 0, 1),
    Sketcher.Constraint("Coincident", 4, 2, 5, 1),
    Sketcher.Constraint("Coincident", 5, 2, 6, 1),
    Sketcher.Constraint("Coincident", 6, 2, 7, 1),
    Sketcher.Constraint("Coincident", 7, 2, 4, 1),
    Sketcher.Constraint("Coincident", 8, 2, 9, 1),
    Sketcher.Constraint("Coincident", 9, 2, 10, 1),
    Sketcher.Constraint("Coincident", 10, 2, 11, 1),
    Sketcher.Constraint("Coincident", 11, 2, 8, 1),
    Sketcher.Constraint("Coincident", 12, 2, 13, 1),
    Sketcher.Constraint("Coincident", 13, 2, 14, 1),
    Sketcher.Constraint("Coincident", 14, 2, 15, 1),
    Sketcher.Constraint("Coincident", 15, 2, 12, 1),
    Sketcher.Constraint("Vertical", 0),
    Sketcher.Constraint("Horizontal", 1),
    Sketcher.Constraint("Vertical", 2),
    Sketcher.Constraint("Horizontal", 3),
    Sketcher.Constraint("Vertical", 4),
    Sketcher.Constraint("Horizontal", 5),
    Sketcher.Constraint("Vertical", 6),
    Sketcher.Constraint("Horizontal", 7),
    Sketcher.Constraint("Vertical", 8),
    Sketcher.Constraint("Horizontal", 9),
    Sketcher.Constraint("Vertical", 10),
    Sketcher.Constraint("Horizontal", 11),
    Sketcher.Constraint("Vertical", 12),
    Sketcher.Constraint("Horizontal", 13),
    Sketcher.Constraint("Vertical", 14),
    Sketcher.Constraint("Horizontal", 15),
    Sketcher.Constraint("Symmetric", 2, 2, 8, 2, -1, 1),
    Sketcher.Constraint("Symmetric", 0, 2, 10, 2, -1, 1),
    Sketcher.Constraint("Symmetric", 6, 2, 12, 2, -1, 1),
    Sketcher.Constraint("Symmetric", 4, 2, 14, 2, -1, 1),
    Sketcher.Constraint("Symmetric", 5, 2, 8, 2, -2),
    Sketcher.Constraint("Symmetric", 7, 2, 10, 2, -2),
    Sketcher.Constraint("DistanceX", 1, 1, 1, 2, Q("17 mm")),
    Sketcher.Constraint("DistanceY", 0, 2, 0, 1, Q("10 mm")),
    Sketcher.Constraint("DistanceY", 4, 2, 0, 2, Q("87 mm")),
    Sketcher.Constraint("DistanceX", 5, 2, 8, 2, Q("91 mm")),
])
pad4 = doc.addObject("PartDesign::Pad", "Pad003")
body.addObject(pad4)
pad4.Profile = sketch5
pad4.Length = 2

sketch6 = doc.addObject("Sketcher::SketchObject", "Sketch005")
body.addObject(sketch6)
sketch6.AttachmentSupport = (doc.XZ_Plane, [""])
sketch6.MapMode = "FlatFace"
sketch6.AttachmentOffset = App.Placement(Vector(0, 0, 12), App.Rotation())
sketch6.addGeometry([
    Part.Circle(Vector(54, 43.5, 0), Vector(0, 0, 1), 3.4),
    Part.Circle(Vector(-54, 43.5, 0), Vector(0, 0, 1), 3.4),
    Part.Circle(Vector(-54, -43.5, 0), Vector(0, 0, 1), 3.4),
    Part.Circle(Vector(54, -43.5, 0), Vector(0, 0, 1), 3.4),
], False)
sketch6.addConstraint([
    Sketcher.Constraint("Equal", 0, 1),
    Sketcher.Constraint("Equal", 1, 2),
    Sketcher.Constraint("Equal", 2, 3),
    Sketcher.Constraint("Symmetric", 0, 3, 2, 3, -1, 1),
    Sketcher.Constraint("Symmetric", 1, 3, 3, 3, -1, 1),
    Sketcher.Constraint("Symmetric", 0, 3, 1, 3, -2),
    Sketcher.Constraint("Diameter", 0, Q("6.8 mm")),
    Sketcher.Constraint("DistanceX", -1, 1, 0, 3, Q("54 mm")),
    Sketcher.Constraint("DistanceY", 2, 3, 1, 3, Q("87 mm")),
])
pad5 = doc.addObject("PartDesign::Pad", "Pad004")
body.addObject(pad5)
pad5.Profile = sketch6
pad5.Length = 2

sketch7 = doc.addObject("Sketcher::SketchObject", "Sketch006")
body.addObject(sketch7)
sketch7.AttachmentSupport = (doc.XZ_Plane, [""])
sketch7.MapMode = "FlatFace"
sketch7.AttachmentOffset = App.Placement(Vector(0, 0, -4), App.Rotation())
sketch7.addGeometry([
    Part.LineSegment(Vector(60, -17, 0), Vector(60, 17, 0)),
    Part.LineSegment(Vector(60, 17, 0), Vector(62.5, 17, 0)),
    Part.LineSegment(Vector(62.5, 17, 0), Vector(62.5, -17, 0)),
    Part.LineSegment(Vector(62.5, -17, 0), Vector(60, -17, 0)),
    Part.LineSegment(Vector(-62.5, -17, 0), Vector(-62.5, 17, 0)),
    Part.LineSegment(Vector(-62.5, 17, 0), Vector(-60, 17, 0)),
    Part.LineSegment(Vector(-60, 17, 0), Vector(-60, -17, 0)),
    Part.LineSegment(Vector(-60, -17, 0), Vector(-62.5, -17, 0)),
], False)
sketch7.addConstraint([
    Sketcher.Constraint("Coincident", 0, 2, 1, 1),
    Sketcher.Constraint("Coincident", 1, 2, 2, 1),
    Sketcher.Constraint("Coincident", 2, 2, 3, 1),
    Sketcher.Constraint("Coincident", 3, 2, 0, 1),
    Sketcher.Constraint("Coincident", 4, 2, 5, 1),
    Sketcher.Constraint("Coincident", 5, 2, 6, 1),
    Sketcher.Constraint("Coincident", 6, 2, 7, 1),
    Sketcher.Constraint("Coincident", 7, 2, 4, 1),
    Sketcher.Constraint("Vertical", 0),
    Sketcher.Constraint("Horizontal", 1),
    Sketcher.Constraint("Vertical", 2),
    Sketcher.Constraint("Horizontal", 3),
    Sketcher.Constraint("Vertical", 4),
    Sketcher.Constraint("Horizontal", 5),
    Sketcher.Constraint("Vertical", 6),
    Sketcher.Constraint("Horizontal", 7),
    Sketcher.Constraint("Symmetric", 2, 2, 4, 2, -1, 1),
    Sketcher.Constraint("Symmetric", 0, 2, 6, 2, -1, 1),
    Sketcher.Constraint("Horizontal", 1, 2, 4, 2),
    Sketcher.Constraint("DistanceY", 0, 1, 0, 2, Q("34 mm")),
    Sketcher.Constraint("DistanceX", 1, 1, 1, 2, Q("2.5 mm")),
    Sketcher.Constraint("DistanceX", -1, 1, 0, 2, Q("60 mm")),
])
pocket2 = doc.addObject("PartDesign::Pocket", "Pocket001")
body.addObject(pocket2)
pocket2.Profile = sketch7
pocket2.Type = "ThroughAll"
pocket2.Reversed = True
doc.recompute()

fillet = doc.addObject("PartDesign::Fillet", "Fillet")
body.addObject(fillet)
fillet.Base = (pocket2, edges_at(pocket2, [(62.5, 2, -70)]))
fillet.Radius = 10
doc.recompute()

fillet2 = doc.addObject("PartDesign::Fillet", "Fillet001")
body.addObject(fillet2)
fillet2.Base = (fillet, edges_at(fillet, [(-62.5, 2, -70)]))
fillet2.Radius = 10
doc.recompute()

fillet3 = doc.addObject("PartDesign::Fillet", "Fillet002")
body.addObject(fillet3)
fillet3.Base = (fillet2, edges_at(fillet2, [(-62.5, 2, 70)]))
fillet3.Radius = 10
doc.recompute()

fillet4 = doc.addObject("PartDesign::Fillet", "Fillet003")
body.addObject(fillet4)
fillet4.Base = (fillet3, edges_at(fillet3, [(62.5, 2, 70)]))
fillet4.Radius = 10
doc.recompute()

fillet5 = doc.addObject("PartDesign::Fillet", "Fillet004")
body.addObject(fillet5)
fillet5.Base = (fillet4, edges_at(fillet4, [(62.5, 2, -17)]))
fillet5.Radius = 3
doc.recompute()

fillet6 = doc.addObject("PartDesign::Fillet", "Fillet005")
body.addObject(fillet6)
fillet6.Base = (fillet5, edges_at(fillet5, [(-62.5, 2, 17)]))
fillet6.Radius = 3
doc.recompute()

fillet7 = doc.addObject("PartDesign::Fillet", "Fillet006")
body.addObject(fillet7)
fillet7.Base = (fillet6, edges_at(fillet6, [(62.5, 2, 17)]))
fillet7.Radius = 3
doc.recompute()

fillet8 = doc.addObject("PartDesign::Fillet", "Fillet007")
body.addObject(fillet8)
fillet8.Base = (fillet7, edges_at(fillet7, [(-62.5, 2, -17)]))
fillet8.Radius = 3

doc.recompute()
